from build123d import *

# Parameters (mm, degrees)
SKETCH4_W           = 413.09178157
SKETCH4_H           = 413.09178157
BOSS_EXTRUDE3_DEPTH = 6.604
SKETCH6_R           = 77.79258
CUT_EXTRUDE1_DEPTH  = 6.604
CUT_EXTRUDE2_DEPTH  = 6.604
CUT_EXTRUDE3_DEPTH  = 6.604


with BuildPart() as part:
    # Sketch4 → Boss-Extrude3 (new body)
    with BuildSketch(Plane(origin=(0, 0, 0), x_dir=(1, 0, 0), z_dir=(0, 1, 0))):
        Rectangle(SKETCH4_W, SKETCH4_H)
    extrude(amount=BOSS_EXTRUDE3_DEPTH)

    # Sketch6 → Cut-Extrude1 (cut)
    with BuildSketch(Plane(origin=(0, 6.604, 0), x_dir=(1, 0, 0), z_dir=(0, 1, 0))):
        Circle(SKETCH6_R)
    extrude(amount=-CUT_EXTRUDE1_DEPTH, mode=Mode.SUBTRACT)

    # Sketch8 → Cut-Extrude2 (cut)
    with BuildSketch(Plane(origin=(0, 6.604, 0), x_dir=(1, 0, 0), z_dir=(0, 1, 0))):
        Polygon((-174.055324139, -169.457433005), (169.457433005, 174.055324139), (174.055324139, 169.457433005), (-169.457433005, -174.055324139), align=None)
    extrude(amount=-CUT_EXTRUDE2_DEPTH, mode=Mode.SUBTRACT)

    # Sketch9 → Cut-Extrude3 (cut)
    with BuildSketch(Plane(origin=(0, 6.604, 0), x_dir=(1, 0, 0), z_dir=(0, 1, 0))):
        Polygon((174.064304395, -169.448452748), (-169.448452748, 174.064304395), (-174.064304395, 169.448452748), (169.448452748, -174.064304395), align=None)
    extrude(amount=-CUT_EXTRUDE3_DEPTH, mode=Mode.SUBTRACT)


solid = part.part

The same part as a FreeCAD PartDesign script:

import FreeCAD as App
import Part
import Sketcher
Q = App.Units.Quantity

doc = App.newDocument("Part")
body = doc.addObject("PartDesign::Body", "Body")

# Sketch on XZ plane
sketch1 = body.newObject("Sketcher::SketchObject", "Sketch")
sketch1.AttachmentSupport = (doc.getObject("XZ_Plane"), [""])
sketch1.MapMode = "FlatFace"
sketch1.addGeometry(Part.LineSegment(App.Vector(-207, -207, 0), App.Vector(-207, 207, 0)), False)
sketch1.addGeometry(Part.LineSegment(App.Vector(-207, 207, 0), App.Vector(207, 207, 0)), False)
sketch1.addGeometry(Part.LineSegment(App.Vector(207, 207, 0), App.Vector(207, -207, 0)), False)
sketch1.addGeometry(Part.LineSegment(App.Vector(207, -207, 0), App.Vector(-207, -207, 0)), False)
sketch1.addConstraint(Sketcher.Constraint("Coincident", 0, 2, 1, 1))
sketch1.addConstraint(Sketcher.Constraint("Coincident", 1, 2, 2, 1))
sketch1.addConstraint(Sketcher.Constraint("Coincident", 2, 2, 3, 1))
sketch1.addConstraint(Sketcher.Constraint("Coincident", 3, 2, 0, 1))
sketch1.addConstraint(Sketcher.Constraint("Vertical", 0))
sketch1.addConstraint(Sketcher.Constraint("Horizontal", 1))
sketch1.addConstraint(Sketcher.Constraint("Vertical", 2))
sketch1.addConstraint(Sketcher.Constraint("Horizontal", 3))
sketch1.addConstraint(Sketcher.Constraint("Symmetric", 0, 2, 2, 2, -1, 1))
sketch1.addConstraint(Sketcher.Constraint("Equal", 3, 0))
sketch1.addConstraint(Sketcher.Constraint("DistanceX", 1, 1, 1, 2, 413.091782))
pad1 = body.newObject("PartDesign::Pad", "Pad")
pad1.Profile = sketch1
pad1.Length = Q("0.26 in")
pad1.Reversed = True

# Sketch on XZ plane
sketch2 = body.newObject("Sketcher::SketchObject", "Sketch001")
sketch2.AttachmentSupport = (doc.getObject("XZ_Plane"), [""])
sketch2.MapMode = "FlatFace"
sketch2.AttachmentOffset = App.Placement(App.Vector(0, 0, -0.26 * 25.4), App.Rotation())
sketch2.addGeometry(Part.Circle(App.Vector(0, 0, 0), App.Vector(0, 0, 1), 78), False)
sketch2.addConstraint(Sketcher.Constraint("Coincident", 0, 3, -1, 1))
sketch2.addConstraint(Sketcher.Constraint("Diameter", 0, Q("6.1254 in")))
pocket1 = body.newObject("PartDesign::Pocket", "Pocket")
pocket1.Profile = sketch2
pocket1.Length = Q("0.26 in")
pocket1.Reversed = True

# Sketch on XZ plane
sketch3 = body.newObject("Sketcher::SketchObject", "Sketch002")
sketch3.AttachmentSupport = (doc.getObject("XZ_Plane"), [""])
sketch3.MapMode = "FlatFace"
sketch3.AttachmentOffset = App.Placement(App.Vector(0, 0, -0.26 * 25.4), App.Rotation())
sketch3.addGeometry(Part.LineSegment(App.Vector(169, -174, 0), App.Vector(-174, 169, 0)), False)
sketch3.addGeometry(Part.LineSegment(App.Vector(-174, 169, 0), App.Vector(-169, 174, 0)), False)
sketch3.addGeometry(Part.LineSegment(App.Vector(-169, 174, 0), App.Vector(174, -169, 0)), False)
sketch3.addGeometry(Part.LineSegment(App.Vector(174, -169, 0), App.Vector(169, -174, 0)), False)
sketch3.addConstraint(Sketcher.Constraint("Coincident", 0, 2, 1, 1))
sketch3.addConstraint(Sketcher.Constraint("Coincident", 1, 2, 2, 1))
sketch3.addConstraint(Sketcher.Constraint("Coincident", 2, 2, 3, 1))
sketch3.addConstraint(Sketcher.Constraint("Coincident", 3, 2, 0, 1))
sketch3.addConstraint(Sketcher.Constraint("Symmetric", 0, 2, 2, 2, -1, 1))
sketch3.addConstraint(Sketcher.Constraint("Symmetric", 1, 2, 3, 2, -1, 1))
sketch3.addConstraint(Sketcher.Constraint("Perpendicular", 0, 1))
sketch3.addConstraint(Sketcher.Constraint("Angle", 0, Q("135 deg")))
sketch3.addConstraint(Sketcher.Constraint("Distance", 0, Q("19.126 in")))
sketch3.addConstraint(Sketcher.Constraint("Distance", 1, Q("0.256 in")))
pocket2 = body.newObject("PartDesign::Pocket", "Pocket001")
pocket2.Profile = sketch3
pocket2.Length = Q("0.26 in")
pocket2.Reversed = True

# Sketch on XZ plane
sketch4 = body.newObject("Sketcher::SketchObject", "Sketch003")
sketch4.AttachmentSupport = (doc.getObject("XZ_Plane"), [""])
sketch4.MapMode = "FlatFace"
sketch4.AttachmentOffset = App.Placement(App.Vector(0, 0, -0.26 * 25.4), App.Rotation())
sketch4.addGeometry(Part.LineSegment(App.Vector(174, 169, 0), App.Vector(-169, -174, 0)), False)
sketch4.addGeometry(Part.LineSegment(App.Vector(-169, -174, 0), App.Vector(-174, -169, 0)), False)
sketch4.addGeometry(Part.LineSegment(App.Vector(-174, -169, 0), App.Vector(169, 174, 0)), False)
sketch4.addGeometry(Part.LineSegment(App.Vector(169, 174, 0), App.Vector(174, 169, 0)), False)
sketch4.addConstraint(Sketcher.Constraint("Coincident", 0, 2, 1, 1))
sketch4.addConstraint(Sketcher.Constraint("Coincident", 1, 2, 2, 1))
sketch4.addConstraint(Sketcher.Constraint("Coincident", 2, 2, 3, 1))
sketch4.addConstraint(Sketcher.Constraint("Coincident", 3, 2, 0, 1))
sketch4.addConstraint(Sketcher.Constraint("Symmetric", 0, 2, 2, 2, -1, 1))
sketch4.addConstraint(Sketcher.Constraint("Symmetric", 1, 2, 3, 2, -1, 1))
sketch4.addConstraint(Sketcher.Constraint("Perpendicular", 0, 1))
sketch4.addConstraint(Sketcher.Constraint("Angle", 0, Q("-135 deg")))
sketch4.addConstraint(Sketcher.Constraint("Distance", 0, Q("19.126 in")))
sketch4.addConstraint(Sketcher.Constraint("Distance", 1, Q("0.257 in")))
pocket3 = body.newObject("PartDesign::Pocket", "Pocket002")
pocket3.Profile = sketch4
pocket3.Length = Q("0.26 in")
pocket3.Reversed = True

doc.recompute()
